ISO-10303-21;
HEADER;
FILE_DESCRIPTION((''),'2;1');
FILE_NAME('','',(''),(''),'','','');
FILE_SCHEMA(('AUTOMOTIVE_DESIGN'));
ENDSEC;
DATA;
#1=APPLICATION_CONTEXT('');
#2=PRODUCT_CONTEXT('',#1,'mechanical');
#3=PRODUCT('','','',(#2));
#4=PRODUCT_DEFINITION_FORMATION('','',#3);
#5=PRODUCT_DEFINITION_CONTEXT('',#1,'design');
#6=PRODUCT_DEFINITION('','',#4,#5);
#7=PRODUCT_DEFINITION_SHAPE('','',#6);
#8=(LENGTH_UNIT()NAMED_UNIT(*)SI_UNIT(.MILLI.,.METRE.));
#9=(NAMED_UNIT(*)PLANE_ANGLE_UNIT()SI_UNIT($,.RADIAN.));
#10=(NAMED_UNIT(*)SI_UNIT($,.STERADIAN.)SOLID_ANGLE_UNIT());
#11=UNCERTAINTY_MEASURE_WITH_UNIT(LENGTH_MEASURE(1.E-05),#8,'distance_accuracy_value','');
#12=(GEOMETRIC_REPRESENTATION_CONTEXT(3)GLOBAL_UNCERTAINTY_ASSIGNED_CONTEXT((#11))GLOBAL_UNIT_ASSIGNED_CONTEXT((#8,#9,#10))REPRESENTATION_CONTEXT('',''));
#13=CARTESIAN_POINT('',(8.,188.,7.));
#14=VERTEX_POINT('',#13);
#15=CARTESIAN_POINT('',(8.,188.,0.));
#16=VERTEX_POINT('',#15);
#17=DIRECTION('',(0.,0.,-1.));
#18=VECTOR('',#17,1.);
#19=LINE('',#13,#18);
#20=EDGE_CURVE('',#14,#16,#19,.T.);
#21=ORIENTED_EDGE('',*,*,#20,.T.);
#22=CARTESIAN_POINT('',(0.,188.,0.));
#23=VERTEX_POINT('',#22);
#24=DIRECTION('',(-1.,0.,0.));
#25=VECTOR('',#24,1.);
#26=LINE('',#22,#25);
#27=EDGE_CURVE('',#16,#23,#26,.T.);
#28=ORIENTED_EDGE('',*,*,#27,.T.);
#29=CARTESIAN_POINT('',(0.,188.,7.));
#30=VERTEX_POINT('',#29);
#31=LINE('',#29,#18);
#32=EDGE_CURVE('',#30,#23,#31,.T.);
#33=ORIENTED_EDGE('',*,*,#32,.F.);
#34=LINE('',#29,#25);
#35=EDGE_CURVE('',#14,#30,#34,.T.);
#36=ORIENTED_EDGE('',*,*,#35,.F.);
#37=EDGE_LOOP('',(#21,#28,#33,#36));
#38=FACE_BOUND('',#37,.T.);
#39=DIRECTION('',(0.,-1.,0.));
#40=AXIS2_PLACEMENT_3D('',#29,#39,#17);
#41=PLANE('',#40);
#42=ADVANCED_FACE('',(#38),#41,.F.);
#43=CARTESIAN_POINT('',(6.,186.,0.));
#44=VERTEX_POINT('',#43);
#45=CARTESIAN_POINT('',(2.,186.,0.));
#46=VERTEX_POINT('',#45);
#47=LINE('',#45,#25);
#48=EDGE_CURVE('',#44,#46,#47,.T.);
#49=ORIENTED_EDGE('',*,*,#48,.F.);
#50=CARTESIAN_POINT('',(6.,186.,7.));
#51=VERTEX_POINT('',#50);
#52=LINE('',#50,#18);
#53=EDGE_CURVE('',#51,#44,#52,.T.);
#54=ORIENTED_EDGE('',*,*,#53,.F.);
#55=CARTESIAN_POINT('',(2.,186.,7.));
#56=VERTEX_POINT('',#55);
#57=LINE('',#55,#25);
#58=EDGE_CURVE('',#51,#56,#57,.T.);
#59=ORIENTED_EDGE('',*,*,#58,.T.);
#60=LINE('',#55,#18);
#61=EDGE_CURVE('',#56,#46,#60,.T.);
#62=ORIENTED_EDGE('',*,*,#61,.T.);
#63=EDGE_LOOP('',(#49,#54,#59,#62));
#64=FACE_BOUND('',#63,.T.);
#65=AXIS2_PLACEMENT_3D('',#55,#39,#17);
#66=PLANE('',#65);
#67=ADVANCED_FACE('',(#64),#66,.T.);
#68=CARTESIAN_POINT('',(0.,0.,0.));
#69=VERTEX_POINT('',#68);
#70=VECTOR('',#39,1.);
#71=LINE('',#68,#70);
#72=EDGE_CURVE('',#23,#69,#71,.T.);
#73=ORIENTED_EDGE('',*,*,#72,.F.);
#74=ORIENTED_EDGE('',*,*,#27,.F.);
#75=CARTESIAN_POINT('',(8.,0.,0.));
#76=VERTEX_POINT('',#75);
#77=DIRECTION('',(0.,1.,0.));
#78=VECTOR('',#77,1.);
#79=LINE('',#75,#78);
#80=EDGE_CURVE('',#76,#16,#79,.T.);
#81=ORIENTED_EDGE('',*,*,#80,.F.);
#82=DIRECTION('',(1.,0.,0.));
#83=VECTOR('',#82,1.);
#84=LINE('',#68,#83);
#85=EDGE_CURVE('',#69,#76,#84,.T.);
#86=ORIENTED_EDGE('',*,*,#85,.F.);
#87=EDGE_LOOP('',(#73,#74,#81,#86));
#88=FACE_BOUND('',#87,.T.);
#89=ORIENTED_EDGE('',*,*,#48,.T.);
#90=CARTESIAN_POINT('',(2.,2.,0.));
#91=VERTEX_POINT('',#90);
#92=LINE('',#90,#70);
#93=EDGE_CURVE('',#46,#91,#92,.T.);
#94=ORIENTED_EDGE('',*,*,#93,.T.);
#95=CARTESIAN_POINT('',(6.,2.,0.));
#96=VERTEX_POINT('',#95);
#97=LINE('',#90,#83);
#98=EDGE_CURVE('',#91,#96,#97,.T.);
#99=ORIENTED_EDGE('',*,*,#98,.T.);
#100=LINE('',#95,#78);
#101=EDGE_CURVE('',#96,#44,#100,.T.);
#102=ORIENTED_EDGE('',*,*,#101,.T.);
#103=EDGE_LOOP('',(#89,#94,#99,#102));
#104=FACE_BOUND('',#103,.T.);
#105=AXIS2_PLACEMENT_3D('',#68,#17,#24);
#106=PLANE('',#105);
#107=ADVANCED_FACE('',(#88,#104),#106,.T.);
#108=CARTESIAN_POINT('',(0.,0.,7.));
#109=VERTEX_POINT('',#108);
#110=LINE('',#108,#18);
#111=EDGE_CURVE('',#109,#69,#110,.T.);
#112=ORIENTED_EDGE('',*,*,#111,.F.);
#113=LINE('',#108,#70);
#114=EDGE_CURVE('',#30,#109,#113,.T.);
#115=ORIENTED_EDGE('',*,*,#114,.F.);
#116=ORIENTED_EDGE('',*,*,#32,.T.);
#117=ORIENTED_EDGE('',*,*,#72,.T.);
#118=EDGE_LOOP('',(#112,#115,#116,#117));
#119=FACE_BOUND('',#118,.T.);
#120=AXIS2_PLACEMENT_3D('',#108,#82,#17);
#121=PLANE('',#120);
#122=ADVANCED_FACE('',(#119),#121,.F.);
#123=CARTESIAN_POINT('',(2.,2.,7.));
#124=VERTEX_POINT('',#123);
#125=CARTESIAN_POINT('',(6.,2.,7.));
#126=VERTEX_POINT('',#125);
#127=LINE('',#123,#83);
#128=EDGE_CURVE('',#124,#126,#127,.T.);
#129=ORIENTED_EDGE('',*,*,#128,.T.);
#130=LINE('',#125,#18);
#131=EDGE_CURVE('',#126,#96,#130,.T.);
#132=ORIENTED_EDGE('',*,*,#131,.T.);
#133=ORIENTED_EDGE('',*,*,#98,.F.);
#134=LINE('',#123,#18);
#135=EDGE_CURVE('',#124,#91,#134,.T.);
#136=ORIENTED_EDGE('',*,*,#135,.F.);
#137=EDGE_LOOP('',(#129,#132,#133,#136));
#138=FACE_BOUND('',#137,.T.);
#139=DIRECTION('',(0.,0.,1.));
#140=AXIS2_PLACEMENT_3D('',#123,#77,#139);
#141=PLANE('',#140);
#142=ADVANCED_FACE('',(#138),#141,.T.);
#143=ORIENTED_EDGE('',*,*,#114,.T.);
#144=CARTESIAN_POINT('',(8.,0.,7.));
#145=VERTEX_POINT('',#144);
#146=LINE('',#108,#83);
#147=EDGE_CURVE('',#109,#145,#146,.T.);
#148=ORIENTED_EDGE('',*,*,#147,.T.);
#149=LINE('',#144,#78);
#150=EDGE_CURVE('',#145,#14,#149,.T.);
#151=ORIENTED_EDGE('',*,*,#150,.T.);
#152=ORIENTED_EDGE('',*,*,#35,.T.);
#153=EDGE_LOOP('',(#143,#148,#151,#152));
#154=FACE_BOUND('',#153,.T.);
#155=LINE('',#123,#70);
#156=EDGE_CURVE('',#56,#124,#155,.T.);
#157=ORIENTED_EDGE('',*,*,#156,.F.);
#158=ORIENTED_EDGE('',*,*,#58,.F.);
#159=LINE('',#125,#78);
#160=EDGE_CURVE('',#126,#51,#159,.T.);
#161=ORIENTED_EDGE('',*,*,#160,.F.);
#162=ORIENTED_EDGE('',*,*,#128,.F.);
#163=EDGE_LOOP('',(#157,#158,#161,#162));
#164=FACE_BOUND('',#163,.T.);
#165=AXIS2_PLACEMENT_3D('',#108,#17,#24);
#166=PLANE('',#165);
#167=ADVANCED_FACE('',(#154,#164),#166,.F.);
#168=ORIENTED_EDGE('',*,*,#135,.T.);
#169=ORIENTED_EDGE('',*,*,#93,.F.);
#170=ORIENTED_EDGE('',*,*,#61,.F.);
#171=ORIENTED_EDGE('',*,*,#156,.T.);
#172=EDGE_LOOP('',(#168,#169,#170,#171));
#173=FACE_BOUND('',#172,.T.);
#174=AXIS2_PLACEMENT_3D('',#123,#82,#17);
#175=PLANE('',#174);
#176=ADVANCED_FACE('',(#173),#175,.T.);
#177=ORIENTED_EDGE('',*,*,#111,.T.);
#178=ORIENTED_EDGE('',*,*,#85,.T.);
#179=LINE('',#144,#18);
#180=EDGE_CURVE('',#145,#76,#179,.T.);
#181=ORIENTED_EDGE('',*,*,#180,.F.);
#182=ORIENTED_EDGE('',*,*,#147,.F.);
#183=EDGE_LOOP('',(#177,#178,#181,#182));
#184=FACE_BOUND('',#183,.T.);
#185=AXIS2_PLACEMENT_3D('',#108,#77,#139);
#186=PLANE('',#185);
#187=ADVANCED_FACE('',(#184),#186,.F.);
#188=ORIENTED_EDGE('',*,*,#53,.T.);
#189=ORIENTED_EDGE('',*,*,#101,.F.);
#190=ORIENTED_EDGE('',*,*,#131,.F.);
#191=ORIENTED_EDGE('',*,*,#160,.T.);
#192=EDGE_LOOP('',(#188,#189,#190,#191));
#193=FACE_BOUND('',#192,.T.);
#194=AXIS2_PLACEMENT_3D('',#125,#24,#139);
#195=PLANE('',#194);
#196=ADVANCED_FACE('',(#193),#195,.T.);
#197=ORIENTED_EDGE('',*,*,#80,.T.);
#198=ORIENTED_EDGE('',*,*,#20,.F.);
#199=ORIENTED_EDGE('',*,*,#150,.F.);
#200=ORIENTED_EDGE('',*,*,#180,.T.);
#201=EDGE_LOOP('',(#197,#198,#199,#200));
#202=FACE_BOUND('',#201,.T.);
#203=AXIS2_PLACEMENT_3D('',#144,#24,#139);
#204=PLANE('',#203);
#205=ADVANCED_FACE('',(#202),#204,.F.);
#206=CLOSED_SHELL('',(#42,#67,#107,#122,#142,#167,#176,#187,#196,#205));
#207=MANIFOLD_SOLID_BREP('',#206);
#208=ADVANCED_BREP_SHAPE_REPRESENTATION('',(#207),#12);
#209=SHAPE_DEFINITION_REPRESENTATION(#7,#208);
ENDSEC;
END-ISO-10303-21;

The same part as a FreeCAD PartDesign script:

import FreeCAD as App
import Part
import Sketcher

doc = App.newDocument("Part")
body = doc.addObject("PartDesign::Body", "Body")

# Sketch on XY plane
sketch1 = doc.addObject("Sketcher::SketchObject", "Sketch")
body.addObject(sketch1)
sketch1.AttachmentSupport = (doc.XY_Plane, [""])
sketch1.MapMode = "FlatFace"
sketch1.addGeometry(Part.LineSegment(App.Vector(0, 188, 0), App.Vector(0, 0, 0)), False)
sketch1.addGeometry(Part.LineSegment(App.Vector(0, 0, 0), App.Vector(8, 0, 0)), False)
sketch1.addGeometry(Part.LineSegment(App.Vector(8, 0, 0), App.Vector(8, 188, 0)), False)
sketch1.addGeometry(Part.LineSegment(App.Vector(8, 188, 0), App.Vector(0, 188, 0)), False)
sketch1.addGeometry(Part.LineSegment(App.Vector(6, 2, 0), App.Vector(2, 2, 0)), False)
sketch1.addGeometry(Part.LineSegment(App.Vector(2, 2, 0), App.Vector(2, 186, 0)), False)
sketch1.addGeometry(Part.LineSegment(App.Vector(2, 186, 0), App.Vector(6, 186, 0)), False)
sketch1.addGeometry(Part.LineSegment(App.Vector(6, 186, 0), App.Vector(6, 2, 0)), False)
sketch1.addConstraint(Sketcher.Constraint("Coincident", 0, 2, 1, 1))
sketch1.addConstraint(Sketcher.Constraint("Coincident", 1, 2, 2, 1))
sketch1.addConstraint(Sketcher.Constraint("Coincident", 2, 2, 3, 1))
sketch1.addConstraint(Sketcher.Constraint("Coincident", 3, 2, 0, 1))
sketch1.addConstraint(Sketcher.Constraint("Coincident", 4, 2, 5, 1))
sketch1.addConstraint(Sketcher.Constraint("Coincident", 5, 2, 6, 1))
sketch1.addConstraint(Sketcher.Constraint("Coincident", 6, 2, 7, 1))
sketch1.addConstraint(Sketcher.Constraint("Coincident", 7, 2, 4, 1))
sketch1.addConstraint(Sketcher.Constraint("Vertical", 0))
sketch1.addConstraint(Sketcher.Constraint("Horizontal", 1))
sketch1.addConstraint(Sketcher.Constraint("Vertical", 2))
sketch1.addConstraint(Sketcher.Constraint("Horizontal", 3))
sketch1.addConstraint(Sketcher.Constraint("Horizontal", 4))
sketch1.addConstraint(Sketcher.Constraint("Vertical", 5))
sketch1.addConstraint(Sketcher.Constraint("Horizontal", 6))
sketch1.addConstraint(Sketcher.Constraint("Vertical", 7))
sketch1.addConstraint(Sketcher.Constraint("Coincident", 0, 2, -1, 1))
sketch1.addConstraint(Sketcher.Constraint("DistanceX", 1, 1, 1, 2, 8.0))
sketch1.addConstraint(Sketcher.Constraint("DistanceX", 4, 2, 4, 1, 4.0))
sketch1.addConstraint(Sketcher.Constraint("DistanceY", 0, 2, 0, 1, 188.0))
sketch1.addConstraint(Sketcher.Constraint("DistanceY", 5, 1, 5, 2, 184.0))
sketch1.addConstraint(Sketcher.Constraint("DistanceX", -1, 1, 4, 2, 2.0))
sketch1.addConstraint(Sketcher.Constraint("DistanceY", -1, 1, 4, 2, 2.0))
pad1 = doc.addObject("PartDesign::Pad", "Pad")
body.addObject(pad1)
pad1.Profile = sketch1
pad1.Length = 7

doc.recompute()
